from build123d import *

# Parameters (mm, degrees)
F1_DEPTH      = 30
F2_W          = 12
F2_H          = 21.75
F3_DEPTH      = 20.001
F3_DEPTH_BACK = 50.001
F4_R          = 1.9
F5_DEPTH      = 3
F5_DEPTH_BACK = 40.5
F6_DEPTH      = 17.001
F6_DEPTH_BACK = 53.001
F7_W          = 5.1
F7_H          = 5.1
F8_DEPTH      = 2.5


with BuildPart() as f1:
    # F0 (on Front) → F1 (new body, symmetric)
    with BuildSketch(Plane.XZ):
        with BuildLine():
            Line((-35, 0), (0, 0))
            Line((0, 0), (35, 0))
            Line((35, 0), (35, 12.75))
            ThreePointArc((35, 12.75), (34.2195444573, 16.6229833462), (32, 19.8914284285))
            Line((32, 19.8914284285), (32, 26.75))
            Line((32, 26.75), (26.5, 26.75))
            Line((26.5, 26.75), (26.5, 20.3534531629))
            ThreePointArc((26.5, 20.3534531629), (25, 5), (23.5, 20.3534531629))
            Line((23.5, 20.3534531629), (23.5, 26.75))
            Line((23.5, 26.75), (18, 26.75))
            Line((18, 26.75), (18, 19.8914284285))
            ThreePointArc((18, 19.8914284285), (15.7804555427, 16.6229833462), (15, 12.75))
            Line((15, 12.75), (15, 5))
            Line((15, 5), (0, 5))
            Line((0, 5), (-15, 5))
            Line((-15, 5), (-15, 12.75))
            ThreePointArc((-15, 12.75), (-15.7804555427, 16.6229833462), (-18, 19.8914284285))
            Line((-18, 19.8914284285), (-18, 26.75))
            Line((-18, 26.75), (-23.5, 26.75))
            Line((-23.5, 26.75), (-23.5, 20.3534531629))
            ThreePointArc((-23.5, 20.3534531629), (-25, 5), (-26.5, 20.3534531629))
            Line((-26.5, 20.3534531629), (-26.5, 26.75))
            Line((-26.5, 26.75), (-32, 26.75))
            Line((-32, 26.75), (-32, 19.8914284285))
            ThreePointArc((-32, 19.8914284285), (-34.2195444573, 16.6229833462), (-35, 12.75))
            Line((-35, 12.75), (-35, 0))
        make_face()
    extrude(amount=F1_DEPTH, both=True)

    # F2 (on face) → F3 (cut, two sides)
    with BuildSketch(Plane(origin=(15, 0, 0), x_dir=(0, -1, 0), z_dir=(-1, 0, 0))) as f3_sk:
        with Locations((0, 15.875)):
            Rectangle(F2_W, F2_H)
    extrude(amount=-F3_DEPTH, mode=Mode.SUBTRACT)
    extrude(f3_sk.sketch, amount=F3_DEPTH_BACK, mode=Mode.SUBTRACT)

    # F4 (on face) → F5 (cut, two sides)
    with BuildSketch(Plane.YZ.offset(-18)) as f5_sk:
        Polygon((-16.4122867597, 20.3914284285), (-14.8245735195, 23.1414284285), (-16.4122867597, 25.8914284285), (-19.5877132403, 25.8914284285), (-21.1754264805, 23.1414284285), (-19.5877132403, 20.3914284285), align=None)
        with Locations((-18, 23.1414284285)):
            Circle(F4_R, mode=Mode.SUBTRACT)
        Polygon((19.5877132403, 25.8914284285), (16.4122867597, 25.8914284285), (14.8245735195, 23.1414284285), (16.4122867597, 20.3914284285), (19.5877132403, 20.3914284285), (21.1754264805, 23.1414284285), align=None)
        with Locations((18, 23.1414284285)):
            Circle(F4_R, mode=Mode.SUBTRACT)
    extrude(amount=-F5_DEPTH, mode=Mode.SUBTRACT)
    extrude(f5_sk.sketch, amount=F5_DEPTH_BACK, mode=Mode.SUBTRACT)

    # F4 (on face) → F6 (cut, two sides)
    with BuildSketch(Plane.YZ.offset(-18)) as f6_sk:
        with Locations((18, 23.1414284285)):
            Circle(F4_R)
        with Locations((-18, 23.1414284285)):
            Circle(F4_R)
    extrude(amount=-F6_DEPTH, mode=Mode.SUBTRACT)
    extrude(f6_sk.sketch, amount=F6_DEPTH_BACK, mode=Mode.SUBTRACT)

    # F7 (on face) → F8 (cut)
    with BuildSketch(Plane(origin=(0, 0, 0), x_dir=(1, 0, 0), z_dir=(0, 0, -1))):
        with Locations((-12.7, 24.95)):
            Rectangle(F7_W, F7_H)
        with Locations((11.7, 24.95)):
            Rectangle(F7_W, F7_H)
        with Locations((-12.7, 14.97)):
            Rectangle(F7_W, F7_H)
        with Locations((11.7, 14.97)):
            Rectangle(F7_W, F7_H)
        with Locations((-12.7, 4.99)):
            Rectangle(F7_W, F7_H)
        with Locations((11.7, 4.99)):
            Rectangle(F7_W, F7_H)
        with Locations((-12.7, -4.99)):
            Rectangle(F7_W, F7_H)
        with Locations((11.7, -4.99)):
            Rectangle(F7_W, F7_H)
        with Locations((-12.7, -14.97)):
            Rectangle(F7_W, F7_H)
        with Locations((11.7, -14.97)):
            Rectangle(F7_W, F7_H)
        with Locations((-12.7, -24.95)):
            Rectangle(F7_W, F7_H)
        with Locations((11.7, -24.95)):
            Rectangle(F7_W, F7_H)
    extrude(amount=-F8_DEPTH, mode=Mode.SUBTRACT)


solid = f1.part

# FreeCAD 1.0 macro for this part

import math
import FreeCAD as App
import Part
import Sketcher

V = App.Vector
Q = App.Units.Quantity


def add_polygon(sketch, points):
    """Adds a closed chain of lines whose ends are joined by coincident constraints."""
    first, n = sketch.GeometryCount, len(points)
    for a, b in zip(points, points[1:] + points[:1]):
        sketch.addGeometry(Part.LineSegment(App.Vector(*a, 0), App.Vector(*b, 0)), False)
    for i in range(n):
        sketch.addConstraint(Sketcher.Constraint("Coincident", first + i, 2, first + (i + 1) % n, 1))

doc = App.newDocument("Part")
body = doc.addObject("PartDesign::Body", "Body")

# Sketch on XZ plane
sketch1 = body.newObject("Sketcher::SketchObject", "Sketch")
sketch1.AttachmentSupport = (doc.getObject("XZ_Plane"), [""])
sketch1.MapMode = "FlatFace"
sketch1.addGeometry([
    Part.LineSegment(V(-35, 0, 0), V(35, 0, 0)),  # 0
    Part.LineSegment(V(35, 0, 0), V(35, 12.75, 0)),  # 1
    Part.ArcOfCircle(Part.Circle(V(25, 12.75, 0), V(0, 0, 1), 10), math.radians(0), math.radians(45.572996)),  # 2
    Part.LineSegment(V(32, 19.891428, 0), V(32, 26.75, 0)),  # 3
    Part.LineSegment(V(32, 26.75, 0), V(26.5, 26.75, 0)),  # 4
    Part.LineSegment(V(26.5, 26.75, 0), V(26.5, 20.353453, 0)),  # 5
    Part.ArcOfCircle(Part.Circle(V(25, 12.75, 0), V(0, 0, 1), 7.75), math.radians(101.159937), math.radians(438.840063)),  # 6
    Part.LineSegment(V(23.5, 20.353453, 0), V(23.5, 26.75, 0)),  # 7
    Part.LineSegment(V(23.5, 26.75, 0), V(18, 26.75, 0)),  # 8
    Part.LineSegment(V(18, 26.75, 0), V(18, 19.891428, 0)),  # 9
    Part.ArcOfCircle(Part.Circle(V(25, 12.75, 0), V(0, 0, 1), 10), math.radians(134.427004), math.radians(180)),  # 10
    Part.LineSegment(V(15, 12.75, 0), V(15, 5, 0)),  # 11
    Part.LineSegment(V(15, 5, 0), V(-15, 5, 0)),  # 12
    Part.LineSegment(V(-15, 5, 0), V(-15, 12.75, 0)),  # 13
    Part.ArcOfCircle(Part.Circle(V(-25, 12.75, 0), V(0, 0, 1), 10), math.radians(0), math.radians(45.572996)),  # 14
    Part.LineSegment(V(-18, 19.891428, 0), V(-18, 26.75, 0)),  # 15
    Part.LineSegment(V(-18, 26.75, 0), V(-23.5, 26.75, 0)),  # 16
    Part.LineSegment(V(-23.5, 26.75, 0), V(-23.5, 20.353453, 0)),  # 17
    Part.ArcOfCircle(Part.Circle(V(-25, 12.75, 0), V(0, 0, 1), 7.75), math.radians(101.159937), math.radians(438.840063)),  # 18
    Part.LineSegment(V(-26.5, 20.353453, 0), V(-26.5, 26.75, 0)),  # 19
    Part.LineSegment(V(-26.5, 26.75, 0), V(-32, 26.75, 0)),  # 20
    Part.LineSegment(V(-32, 26.75, 0), V(-32, 19.891428, 0)),  # 21
    Part.ArcOfCircle(Part.Circle(V(-25, 12.75, 0), V(0, 0, 1), 10), math.radians(134.427004), math.radians(180)),  # 22
    Part.LineSegment(V(-35, 12.75, 0), V(-35, 0, 0)),  # 23
], False)
sketch1.addConstraint([
    Sketcher.Constraint("Coincident", 0, 2, 1, 1),
    Sketcher.Constraint("Tangent", 1, 2, 2, 1),
    Sketcher.Constraint("Coincident", 2, 2, 3, 1),
    Sketcher.Constraint("Coincident", 3, 2, 4, 1),
    Sketcher.Constraint("Coincident", 4, 2, 5, 1),
    Sketcher.Constraint("Coincident", 5, 2, 6, 2),
    Sketcher.Constraint("Coincident", 6, 1, 7, 1),
    Sketcher.Constraint("Coincident", 7, 2, 8, 1),
    Sketcher.Constraint("Coincident", 8, 2, 9, 1),
    Sketcher.Constraint("Coincident", 9, 2, 10, 1),
    Sketcher.Constraint("Tangent", 10, 2, 11, 1),
    Sketcher.Constraint("Coincident", 11, 2, 12, 1),
    Sketcher.Constraint("Coincident", 12, 2, 13, 1),
    Sketcher.Constraint("Tangent", 13, 2, 14, 1),
    Sketcher.Constraint("Coincident", 14, 2, 15, 1),
    Sketcher.Constraint("Coincident", 15, 2, 16, 1),
    Sketcher.Constraint("Coincident", 16, 2, 17, 1),
    Sketcher.Constraint("Coincident", 17, 2, 18, 2),
    Sketcher.Constraint("Coincident", 18, 1, 19, 1),
    Sketcher.Constraint("Coincident", 19, 2, 20, 1),
    Sketcher.Constraint("Coincident", 20, 2, 21, 1),
    Sketcher.Constraint("Coincident", 21, 2, 22, 1),
    Sketcher.Constraint("Tangent", 22, 2, 23, 1),
    Sketcher.Constraint("Coincident", 23, 2, 0, 1),
    Sketcher.Constraint("Horizontal", 0),
    Sketcher.Constraint("Vertical", 1),
    Sketcher.Constraint("Vertical", 3),
    Sketcher.Constraint("Horizontal", 4),
    Sketcher.Constraint("Vertical", 5),
    Sketcher.Constraint("Vertical", 7),
    Sketcher.Constraint("Horizontal", 8),
    Sketcher.Constraint("Vertical", 9),
    Sketcher.Constraint("Vertical", 11),
    Sketcher.Constraint("Horizontal", 12),
    Sketcher.Constraint("Vertical", 13),
    Sketcher.Constraint("Vertical", 15),
    Sketcher.Constraint("Horizontal", 16),
    Sketcher.Constraint("Vertical", 17),
    Sketcher.Constraint("Vertical", 19),
    Sketcher.Constraint("Horizontal", 20),
    Sketcher.Constraint("Vertical", 21),
    Sketcher.Constraint("Vertical", 23),
    Sketcher.Constraint("Coincident", 6, 3, 2, 3),
    Sketcher.Constraint("Coincident", 10, 3, 2, 3),
    Sketcher.Constraint("Coincident", 18, 3, 14, 3),
    Sketcher.Constraint("Coincident", 22, 3, 14, 3),
    Sketcher.Constraint("Equal", 2, 10),
    Sketcher.Constraint("Equal", 10, 14),
    Sketcher.Constraint("Equal", 6, 18),
    Sketcher.Constraint("Equal", 14, 22),
    Sketcher.Constraint("Symmetric", 0, 2, 23, 2, -1, 1),
    Sketcher.Constraint("Symmetric", 9, 2, 14, 2, -2),
    Sketcher.Constraint("Symmetric", 7, 2, 16, 2, -2),
    Sketcher.Constraint("Symmetric", 4, 2, 19, 2, -2),
    Sketcher.Constraint("Horizontal", 5, 2, 6, 1),
    Sketcher.Constraint("Horizontal", 4, 2, 7, 2),
    Sketcher.Constraint("Horizontal", 2, 2, 9, 2),
    Sketcher.Constraint("Horizontal", 14, 2, 21, 2),
    Sketcher.Constraint("Radius", 2, 10.0),
    Sketcher.Constraint("DistanceX", 0, 1, 0, 2, 70.0),
    Sketcher.Constraint("Radius", 6, 7.75),
    Sketcher.Constraint("DistanceX", 4, 2, 4, 1, 5.5),
    Sketcher.Constraint("DistanceX", -1, 1, 2, 2, 32.0),
    Sketcher.Constraint("DistanceY", -1, 1, 11, 2, 5.0),
    Sketcher.Constraint("DistanceY", 1, 2, 3, 2, 14.0),
    Sketcher.Constraint("DistanceY", 1, 1, 1, 2, 12.75),
])
pad1 = body.newObject("PartDesign::Pad", "Pad")
pad1.Profile = sketch1
pad1.Length = 60
pad1.Midplane = True

# Sketch on YZ plane
sketch2 = body.newObject("Sketcher::SketchObject", "Sketch001")
sketch2.AttachmentSupport = (doc.getObject("YZ_Plane"), [""])
sketch2.MapMode = "FlatFace"
sketch2.AttachmentOffset = App.Placement(V(0, 0, 15), App.Rotation())
add_polygon(sketch2, [(6, 26.75), (6, 5), (-6, 5), (-6, 26.75)])  # lines 0-3
sketch2.addConstraint([
    Sketcher.Constraint("Vertical", 0),
    Sketcher.Constraint("Horizontal", 1),
    Sketcher.Constraint("Vertical", 2),
    Sketcher.Constraint("Horizontal", 3),
    Sketcher.Constraint("DistanceX", 1, 2, 1, 1, 12.0),
    Sketcher.Constraint("DistanceX", -1, 1, 0, 2, 6.0),
    Sketcher.Constraint("DistanceY", -1, 1, 0, 2, 5.0),
    Sketcher.Constraint("DistanceY", 0, 2, 0, 1, 21.75),
])
pocket1 = body.newObject("PartDesign::Pocket", "Pocket")
pocket1.Profile = sketch2
pocket1.Type = "ThroughAll"
pocket1.Midplane = True

# Sketch on YZ plane
sketch3 = body.newObject("Sketcher::SketchObject", "Sketch002")
sketch3.AttachmentSupport = (doc.getObject("YZ_Plane"), [""])
sketch3.MapMode = "FlatFace"
sketch3.AttachmentOffset = App.Placement(V(0, 0, -18), App.Rotation())
add_polygon(sketch3, [(-16.412287, 20.391428), (-14.824574, 23.141428), (-16.412287, 25.891428), (-19.587713, 25.891428), (-21.175426, 23.141428), (-19.587713, 20.391428)])  # lines 0-5
sketch3.addGeometry(Part.Circle(V(-18, 23.141428, 0), V(0, 0, 1), 1.9), False)  # 6
add_polygon(sketch3, [(19.587713, 25.891428), (16.412287, 25.891428), (14.824574, 23.141428), (16.412287, 20.391428), (19.587713, 20.391428), (21.175426, 23.141428)])  # lines 7-12
sketch3.addGeometry(Part.Circle(V(18, 23.141428, 0), V(0, 0, 1), 1.9), False)  # 13
sketch3.addConstraint([
    Sketcher.Constraint("Horizontal", 2),
    Sketcher.Constraint("Horizontal", 5),
    Sketcher.Constraint("Horizontal", 7),
    Sketcher.Constraint("Horizontal", 10),
    Sketcher.Constraint("Equal", 6, 13),
    Sketcher.Constraint("Symmetric", 6, 3, 13, 3, -2),
    Sketcher.Constraint("Symmetric", 1, 2, 7, 2, -2),
    Sketcher.Constraint("Symmetric", 0, 2, 8, 2, -2),
    Sketcher.Constraint("Symmetric", 5, 2, 9, 2, -2),
    Sketcher.Constraint("Symmetric", 3, 2, 11, 2, -2),
    Sketcher.Constraint("Parallel", 0, 3),
    Sketcher.Constraint("Parallel", 1, 4),
    Sketcher.Constraint("Parallel", 3, 8),
    Sketcher.Constraint("Parallel", 8, 11),
    Sketcher.Constraint("Parallel", 9, 12),
    Sketcher.Constraint("Horizontal", 13, 3, 0, 2),
    Sketcher.Constraint("Horizontal", 0, 2, 3, 2),
    Sketcher.Constraint("Vertical", 2, 2, 4, 2),
    Sketcher.Constraint("Diameter", 6, 3.8),
    Sketcher.Constraint("Angle", 0, Q("60 deg")),
    Sketcher.Constraint("DistanceX", 6, 3, -1, 1, 18.0),
    Sketcher.Constraint("DistanceY", 4, 2, 2, 2, 5.5),
    Sketcher.Constraint("DistanceX", 2, 2, 2, 1, 3.175426),
    Sketcher.Constraint("DistanceY", -1, 1, 6, 3, 23.141428),
    Sketcher.Constraint("DistanceX", 0, 2, 7, 2, 31.23686),
])
pocket2 = body.newObject("PartDesign::Pocket", "Pocket001")
pocket2.Profile = sketch3
pocket2.Type = "TwoLengths"
pocket2.Length = 3
pocket2.Length2 = 40.5

# Sketch on YZ plane
sketch4 = body.newObject("Sketcher::SketchObject", "Sketch003")
sketch4.AttachmentSupport = (doc.getObject("YZ_Plane"), [""])
sketch4.MapMode = "FlatFace"
sketch4.AttachmentOffset = App.Placement(V(0, 0, -18), App.Rotation())
sketch4.addGeometry([
    Part.Circle(V(18, 23.141428, 0), V(0, 0, 1), 1.9),
    Part.Circle(V(-18, 23.141428, 0), V(0, 0, 1), 1.9),
], False)
sketch4.addConstraint([
    Sketcher.Constraint("Equal", 0, 1),
    Sketcher.Constraint("Symmetric", 0, 3, 1, 3, -2),
    Sketcher.Constraint("Diameter", 0, 3.8),
    Sketcher.Constraint("DistanceX", -1, 1, 0, 3, 18.0),
    Sketcher.Constraint("DistanceY", -1, 1, 0, 3, 23.141428),
])
pocket3 = body.newObject("PartDesign::Pocket", "Pocket002")
pocket3.Profile = sketch4
pocket3.Type = "ThroughAll"
pocket3.Midplane = True

# Sketch on XY plane
sketch5 = body.newObject("Sketcher::SketchObject", "Sketch004")
sketch5.AttachmentSupport = (doc.getObject("XY_Plane"), [""])
sketch5.MapMode = "FlatFace"
add_polygon(sketch5, [(-15.25, -27.5), (-15.25, -22.4), (-10.15, -22.4), (-10.15, -27.5)])  # lines 0-3
add_polygon(sketch5, [(9.15, -27.5), (9.15, -22.4), (14.25, -22.4), (14.25, -27.5)])  # lines 4-7
add_polygon(sketch5, [(-15.25, -17.52), (-15.25, -12.42), (-10.15, -12.42), (-10.15, -17.52)])  # lines 8-11
add_polygon(sketch5, [(9.15, -17.52), (9.15, -12.42), (14.25, -12.42), (14.25, -17.52)])  # lines 12-15
add_polygon(sketch5, [(-15.25, -7.54), (-15.25, -2.44), (-10.15, -2.44), (-10.15, -7.54)])  # lines 16-19
add_polygon(sketch5, [(9.15, -7.54), (9.15, -2.44), (14.25, -2.44), (14.25, -7.54)])  # lines 20-23
add_polygon(sketch5, [(-15.25, 2.44), (-15.25, 7.54), (-10.15, 7.54), (-10.15, 2.44)])  # lines 24-27
add_polygon(sketch5, [(9.15, 2.44), (9.15, 7.54), (14.25, 7.54), (14.25, 2.44)])  # lines 28-31
add_polygon(sketch5, [(-15.25, 12.42), (-15.25, 17.52), (-10.15, 17.52), (-10.15, 12.42)])  # lines 32-35
add_polygon(sketch5, [(9.15, 12.42), (9.15, 17.52), (14.25, 17.52), (14.25, 12.42)])  # lines 36-39
add_polygon(sketch5, [(-15.25, 22.4), (-15.25, 27.5), (-10.15, 27.5), (-10.15, 22.4)])  # lines 40-43
add_polygon(sketch5, [(9.15, 22.4), (9.15, 27.5), (14.25, 27.5), (14.25, 22.4)])  # lines 44-47
sketch5.addConstraint([
    Sketcher.Constraint("Vertical", 0),
    Sketcher.Constraint("Horizontal", 1),
    Sketcher.Constraint("Vertical", 2),
    Sketcher.Constraint("Horizontal", 3),
    Sketcher.Constraint("Vertical", 4),
    Sketcher.Constraint("Horizontal", 5),
    Sketcher.Constraint("Vertical", 6),
    Sketcher.Constraint("Horizontal", 7),
    Sketcher.Constraint("Vertical", 8),
    Sketcher.Constraint("Horizontal", 9),
    Sketcher.Constraint("Vertical", 10),
    Sketcher.Constraint("Horizontal", 11),
    Sketcher.Constraint("Vertical", 12),
    Sketcher.Constraint("Horizontal", 13),
    Sketcher.Constraint("Vertical", 14),
    Sketcher.Constraint("Horizontal", 15),
    Sketcher.Constraint("Vertical", 16),
    Sketcher.Constraint("Horizontal", 17),
    Sketcher.Constraint("Vertical", 18),
    Sketcher.Constraint("Horizontal", 19),
    Sketcher.Constraint("Vertical", 20),
    Sketcher.Constraint("Horizontal", 21),
    Sketcher.Constraint("Vertical", 22),
    Sketcher.Constraint("Horizontal", 23),
    Sketcher.Constraint("Vertical", 24),
    Sketcher.Constraint("Horizontal", 25),
    Sketcher.Constraint("Vertical", 26),
    Sketcher.Constraint("Horizontal", 27),
    Sketcher.Constraint("Vertical", 28),
    Sketcher.Constraint("Horizontal", 29),
    Sketcher.Constraint("Vertical", 30),
    Sketcher.Constraint("Horizontal", 31),
    Sketcher.Constraint("Vertical", 32),
    Sketcher.Constraint("Horizontal", 33),
    Sketcher.Constraint("Vertical", 34),
    Sketcher.Constraint("Horizontal", 35),
    Sketcher.Constraint("Vertical", 36),
    Sketcher.Constraint("Horizontal", 37),
    Sketcher.Constraint("Vertical", 38),
    Sketcher.Constraint("Horizontal", 39),
    Sketcher.Constraint("Vertical", 40),
    Sketcher.Constraint("Horizontal", 41),
    Sketcher.Constraint("Vertical", 42),
    Sketcher.Constraint("Horizontal", 43),
    Sketcher.Constraint("Vertical", 44),
    Sketcher.Constraint("Horizontal", 45),
    Sketcher.Constraint("Vertical", 46),
    Sketcher.Constraint("Horizontal", 47),
    Sketcher.Constraint("Symmetric", 19, 2, 24, 2, -1),
    Sketcher.Constraint("Symmetric", 17, 2, 26, 2, -1),
    Sketcher.Constraint("Symmetric", 23, 2, 28, 2, -1),
    Sketcher.Constraint("Symmetric", 21, 2, 30, 2, -1),
    Sketcher.Constraint("Symmetric", 11, 2, 32, 2, -1),
    Sketcher.Constraint("Symmetric", 9, 2, 34, 2, -1),
    Sketcher.Constraint("Symmetric", 15, 2, 36, 2, -1),
    Sketcher.Constraint("Symmetric", 13, 2, 38, 2, -1),
    Sketcher.Constraint("Symmetric", 3, 2, 40, 2, -1),
    Sketcher.Constraint("Symmetric", 1, 2, 42, 2, -1),
    Sketcher.Constraint("Symmetric", 7, 2, 44, 2, -1),
    Sketcher.Constraint("Symmetric", 5, 2, 46, 2, -1),
    Sketcher.Constraint("Horizontal", 1, 2, 4, 2),
    Sketcher.Constraint("Horizontal", 3, 2, 6, 2),
    Sketcher.Constraint("Horizontal", 9, 2, 12, 2),
    Sketcher.Constraint("Horizontal", 11, 2, 14, 2),
    Sketcher.Constraint("Horizontal", 17, 2, 20, 2),
    Sketcher.Constraint("Horizontal", 19, 2, 22, 2),
    Sketcher.Constraint("Vertical", 3, 2, 8, 2),
    Sketcher.Constraint("Vertical", 2, 2, 9, 2),
    Sketcher.Constraint("Vertical", 7, 2, 12, 2),
    Sketcher.Constraint("Vertical", 6, 2, 13, 2),
    Sketcher.Constraint("Vertical", 11, 2, 16, 2),
    Sketcher.Constraint("Vertical", 10, 2, 17, 2),
    Sketcher.Constraint("Vertical", 15, 2, 20, 2),
    Sketcher.Constraint("Vertical", 14, 2, 21, 2),
    Sketcher.Constraint("Equal", 3, 5),
    Sketcher.Constraint("Equal", 47, 0),
    Sketcher.Constraint("Equal", 6, 8),
    Sketcher.Constraint("Equal", 14, 16),
    Sketcher.Constraint("DistanceX", 1, 1, 1, 2, 5.1),
    Sketcher.Constraint("DistanceY", 0, 2, -1, 1, 22.4),
    Sketcher.Constraint("DistanceX", 1, 2, 4, 2, 19.3),
    Sketcher.Constraint("DistanceX", 0, 2, -1, 1, 15.25),
    Sketcher.Constraint("DistanceY", 8, 2, -1, 1, 12.42),
    Sketcher.Constraint("DistanceY", 16, 2, -1, 1, 2.44),
])
pocket4 = body.newObject("PartDesign::Pocket", "Pocket003")
pocket4.Profile = sketch5
pocket4.Length = 2.5
pocket4.Reversed = True

doc.recompute()
